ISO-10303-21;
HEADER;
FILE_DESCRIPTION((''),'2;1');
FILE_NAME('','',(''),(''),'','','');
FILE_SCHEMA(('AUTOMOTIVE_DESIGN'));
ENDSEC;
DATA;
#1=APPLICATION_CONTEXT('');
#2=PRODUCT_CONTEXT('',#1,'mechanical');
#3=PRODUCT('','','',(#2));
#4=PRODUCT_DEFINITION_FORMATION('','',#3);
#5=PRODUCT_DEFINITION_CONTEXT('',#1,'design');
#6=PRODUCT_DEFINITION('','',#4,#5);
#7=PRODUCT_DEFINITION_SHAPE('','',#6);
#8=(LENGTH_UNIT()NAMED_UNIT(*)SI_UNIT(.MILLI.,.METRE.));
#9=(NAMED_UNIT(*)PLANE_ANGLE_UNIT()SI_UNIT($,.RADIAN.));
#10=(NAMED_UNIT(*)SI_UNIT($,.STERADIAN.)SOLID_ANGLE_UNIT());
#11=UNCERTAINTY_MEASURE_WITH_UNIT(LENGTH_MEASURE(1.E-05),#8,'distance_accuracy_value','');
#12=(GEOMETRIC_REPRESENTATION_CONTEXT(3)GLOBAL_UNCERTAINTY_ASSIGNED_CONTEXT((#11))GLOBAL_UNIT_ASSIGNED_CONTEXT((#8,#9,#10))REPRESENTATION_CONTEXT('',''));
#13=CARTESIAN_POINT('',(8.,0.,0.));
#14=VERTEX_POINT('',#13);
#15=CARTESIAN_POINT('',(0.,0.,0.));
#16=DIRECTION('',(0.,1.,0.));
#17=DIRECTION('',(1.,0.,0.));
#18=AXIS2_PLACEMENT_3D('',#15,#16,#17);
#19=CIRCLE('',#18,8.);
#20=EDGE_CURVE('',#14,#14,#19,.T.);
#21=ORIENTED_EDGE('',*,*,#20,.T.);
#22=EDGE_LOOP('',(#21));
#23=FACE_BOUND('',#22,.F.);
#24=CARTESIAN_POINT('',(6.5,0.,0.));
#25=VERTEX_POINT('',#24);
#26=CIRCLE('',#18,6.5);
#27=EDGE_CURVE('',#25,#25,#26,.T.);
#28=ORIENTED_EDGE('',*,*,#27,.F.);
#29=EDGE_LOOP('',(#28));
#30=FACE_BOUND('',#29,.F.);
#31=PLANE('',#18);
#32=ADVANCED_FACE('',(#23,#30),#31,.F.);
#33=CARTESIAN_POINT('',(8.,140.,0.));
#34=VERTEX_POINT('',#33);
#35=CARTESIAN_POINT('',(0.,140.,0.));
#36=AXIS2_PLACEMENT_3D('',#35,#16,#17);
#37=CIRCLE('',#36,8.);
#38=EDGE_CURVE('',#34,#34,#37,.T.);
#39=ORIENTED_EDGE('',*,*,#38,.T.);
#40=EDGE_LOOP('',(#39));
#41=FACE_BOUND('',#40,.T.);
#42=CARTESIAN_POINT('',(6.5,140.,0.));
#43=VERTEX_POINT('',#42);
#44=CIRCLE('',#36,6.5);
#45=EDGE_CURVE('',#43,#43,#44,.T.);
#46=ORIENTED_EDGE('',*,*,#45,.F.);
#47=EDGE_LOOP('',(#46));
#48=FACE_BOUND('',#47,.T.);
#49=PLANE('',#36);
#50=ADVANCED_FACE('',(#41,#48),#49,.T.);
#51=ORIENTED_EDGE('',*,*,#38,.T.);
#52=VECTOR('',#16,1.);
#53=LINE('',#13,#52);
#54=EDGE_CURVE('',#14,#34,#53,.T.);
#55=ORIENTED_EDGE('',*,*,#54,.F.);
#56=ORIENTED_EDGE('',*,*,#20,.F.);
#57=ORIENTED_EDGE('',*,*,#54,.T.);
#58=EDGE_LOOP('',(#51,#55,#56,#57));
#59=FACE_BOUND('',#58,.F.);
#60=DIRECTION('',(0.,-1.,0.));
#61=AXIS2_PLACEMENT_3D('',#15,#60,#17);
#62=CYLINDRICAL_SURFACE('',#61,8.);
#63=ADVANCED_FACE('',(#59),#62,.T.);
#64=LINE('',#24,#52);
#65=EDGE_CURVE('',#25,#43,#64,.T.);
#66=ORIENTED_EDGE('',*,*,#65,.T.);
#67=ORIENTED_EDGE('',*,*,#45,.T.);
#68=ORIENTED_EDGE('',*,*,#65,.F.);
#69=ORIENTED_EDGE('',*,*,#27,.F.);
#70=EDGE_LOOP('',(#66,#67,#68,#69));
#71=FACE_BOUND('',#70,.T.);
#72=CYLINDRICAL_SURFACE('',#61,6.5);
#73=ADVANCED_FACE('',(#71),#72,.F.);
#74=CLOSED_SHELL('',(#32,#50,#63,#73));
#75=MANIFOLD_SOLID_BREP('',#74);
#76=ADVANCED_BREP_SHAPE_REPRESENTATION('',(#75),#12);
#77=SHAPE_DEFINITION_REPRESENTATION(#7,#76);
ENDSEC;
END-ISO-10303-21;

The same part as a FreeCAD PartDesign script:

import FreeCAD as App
import Part
import Sketcher
from FreeCAD import Vector
Q = App.Units.Quantity

doc = App.newDocument("Part")
body = doc.addObject("PartDesign::Body", "Body")

# Sketch on XZ plane
sketch1 = body.newObject("Sketcher::SketchObject", "Sketch")
sketch1.AttachmentSupport = (doc.getObject("XZ_Plane"), [""])
sketch1.MapMode = "FlatFace"
sketch1.addGeometry(Part.Circle(Vector(0, 0, 0), Vector(0, 0, 1), 8), False)
sketch1.addGeometry(Part.Circle(Vector(0, 0, 0), Vector(0, 0, 1), 6), False)
sketch1.addConstraint(Sketcher.Constraint("Coincident", 0, 3, -1, 1))
sketch1.addConstraint(Sketcher.Constraint("Coincident", 1, 3, -1, 1))
sketch1.addConstraint(Sketcher.Constraint("Diameter", 0, Q("16 mm")))
sketch1.addConstraint(Sketcher.Constraint("Diameter", 1, Q("13 mm")))
pad1 = body.newObject("PartDesign::Pad", "Pad")
pad1.Profile = sketch1
pad1.Length = 140
pad1.Reversed = True

doc.recompute()
